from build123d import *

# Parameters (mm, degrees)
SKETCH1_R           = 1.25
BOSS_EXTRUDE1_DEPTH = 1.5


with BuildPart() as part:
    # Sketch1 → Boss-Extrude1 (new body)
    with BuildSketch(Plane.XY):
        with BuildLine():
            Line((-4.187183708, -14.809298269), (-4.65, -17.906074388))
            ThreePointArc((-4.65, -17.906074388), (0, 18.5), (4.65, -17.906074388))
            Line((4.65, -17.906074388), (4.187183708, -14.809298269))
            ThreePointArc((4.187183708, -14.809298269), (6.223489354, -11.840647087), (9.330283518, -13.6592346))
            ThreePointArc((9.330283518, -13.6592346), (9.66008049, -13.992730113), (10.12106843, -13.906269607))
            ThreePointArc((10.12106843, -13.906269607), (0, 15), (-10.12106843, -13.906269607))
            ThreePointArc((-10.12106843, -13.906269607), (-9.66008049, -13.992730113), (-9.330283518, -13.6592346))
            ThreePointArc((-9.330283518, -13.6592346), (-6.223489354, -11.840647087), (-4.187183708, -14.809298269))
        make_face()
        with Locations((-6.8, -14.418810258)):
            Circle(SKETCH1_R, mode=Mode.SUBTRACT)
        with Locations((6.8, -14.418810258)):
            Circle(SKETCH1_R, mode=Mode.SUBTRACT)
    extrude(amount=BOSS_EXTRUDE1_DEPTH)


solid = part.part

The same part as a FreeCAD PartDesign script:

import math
import FreeCAD as App
import Part
import Sketcher

V = App.Vector
Q = App.Units.Quantity

doc = App.newDocument("Part")
body = doc.addObject("PartDesign::Body", "Body")

# Sketch on XY plane
sketch1 = doc.addObject("Sketcher::SketchObject", "Sketch")
body.addObject(sketch1)
sketch1.AttachmentSupport = (doc.XY_Plane, [""])
sketch1.MapMode = "FlatFace"
sketch1.addGeometry([
    Part.LineSegment(V(-4.7, -17.9, 0), V(-4.2, -14.8, 0)),  # 0
    Part.ArcOfCircle(Part.Circle(V(-6.8, -14.4, 0), V(0, 0, 1), 2.6), math.radians(-8), math.radians(163)),  # 1
    Part.ArcOfCircle(Part.Circle(V(-9.8, -13.5, 0), V(0, 0, 1), 0.5), math.radians(-129), math.radians(-17)),  # 2
    Part.ArcOfCircle(Part.Circle(V(0, -1.2, 0), V(0, 0, 1), 16.2), math.radians(-51), math.radians(231)),  # 3
    Part.ArcOfCircle(Part.Circle(V(9.8, -13.5, 0), V(0, 0, 1), 0.5), math.radians(-163), math.radians(-51)),  # 4
    Part.ArcOfCircle(Part.Circle(V(6.8, -14.4, 0), V(0, 0, 1), 2.6), math.radians(17), math.radians(188)),  # 5
    Part.LineSegment(V(4.2, -14.8, 0), V(4.7, -17.9, 0)),  # 6
    Part.ArcOfCircle(Part.Circle(V(0, 0, 0), V(0, 0, 1), 18.5), math.radians(-75), math.radians(255)),  # 7
    Part.Circle(V(6.8, -14.4, 0), V(0, 0, 1), 1.2),  # 8
    Part.Circle(V(-6.8, -14.4, 0), V(0, 0, 1), 1.2),  # 9
], False)
sketch1.addConstraint([
    Sketcher.Constraint("Tangent", 0, 2, 1, 1),
    Sketcher.Constraint("Tangent", 1, 2, 2, 2),
    Sketcher.Constraint("Tangent", 2, 1, 3, 2),
    Sketcher.Constraint("Tangent", 3, 1, 4, 2),
    Sketcher.Constraint("Tangent", 4, 1, 5, 1),
    Sketcher.Constraint("Tangent", 5, 2, 6, 1),
    Sketcher.Constraint("Coincident", 6, 2, 7, 1),
    Sketcher.Constraint("Coincident", 7, 2, 0, 1),
    Sketcher.Constraint("Coincident", 7, 3, -1, 1),
    Sketcher.Constraint("Coincident", 8, 3, 5, 3),
    Sketcher.Constraint("Coincident", 9, 3, 1, 3),
    Sketcher.Constraint("Equal", 2, 4),
    Sketcher.Constraint("Equal", 1, 5),
    Sketcher.Constraint("Equal", 8, 9),
    Sketcher.Constraint("Symmetric", 2, 3, 4, 3, -2),
    Sketcher.Constraint("Symmetric", 0, 2, 5, 2, -2),
    Sketcher.Constraint("Diameter", 8, 2.5),
    Sketcher.Constraint("Radius", 2, 0.5),
    Sketcher.Constraint("Radius", 7, 18.5),
    Sketcher.Constraint("Angle", 0, Q("81.5 deg")),
    Sketcher.Constraint("Radius", 3, 16.225),
    Sketcher.Constraint("DistanceX", 1, 3, -1, 1, 6.8),
    Sketcher.Constraint("DistanceX", -1, 1, 6, 2, 4.65),
    Sketcher.Constraint("DistanceY", 3, 3, -1, 1, 1.225),
    Sketcher.Constraint("Radius", 1, 2.641835),
])
pad1 = doc.addObject("PartDesign::Pad", "Pad")
body.addObject(pad1)
pad1.Profile = sketch1
pad1.Length = 1.5

doc.recompute()
